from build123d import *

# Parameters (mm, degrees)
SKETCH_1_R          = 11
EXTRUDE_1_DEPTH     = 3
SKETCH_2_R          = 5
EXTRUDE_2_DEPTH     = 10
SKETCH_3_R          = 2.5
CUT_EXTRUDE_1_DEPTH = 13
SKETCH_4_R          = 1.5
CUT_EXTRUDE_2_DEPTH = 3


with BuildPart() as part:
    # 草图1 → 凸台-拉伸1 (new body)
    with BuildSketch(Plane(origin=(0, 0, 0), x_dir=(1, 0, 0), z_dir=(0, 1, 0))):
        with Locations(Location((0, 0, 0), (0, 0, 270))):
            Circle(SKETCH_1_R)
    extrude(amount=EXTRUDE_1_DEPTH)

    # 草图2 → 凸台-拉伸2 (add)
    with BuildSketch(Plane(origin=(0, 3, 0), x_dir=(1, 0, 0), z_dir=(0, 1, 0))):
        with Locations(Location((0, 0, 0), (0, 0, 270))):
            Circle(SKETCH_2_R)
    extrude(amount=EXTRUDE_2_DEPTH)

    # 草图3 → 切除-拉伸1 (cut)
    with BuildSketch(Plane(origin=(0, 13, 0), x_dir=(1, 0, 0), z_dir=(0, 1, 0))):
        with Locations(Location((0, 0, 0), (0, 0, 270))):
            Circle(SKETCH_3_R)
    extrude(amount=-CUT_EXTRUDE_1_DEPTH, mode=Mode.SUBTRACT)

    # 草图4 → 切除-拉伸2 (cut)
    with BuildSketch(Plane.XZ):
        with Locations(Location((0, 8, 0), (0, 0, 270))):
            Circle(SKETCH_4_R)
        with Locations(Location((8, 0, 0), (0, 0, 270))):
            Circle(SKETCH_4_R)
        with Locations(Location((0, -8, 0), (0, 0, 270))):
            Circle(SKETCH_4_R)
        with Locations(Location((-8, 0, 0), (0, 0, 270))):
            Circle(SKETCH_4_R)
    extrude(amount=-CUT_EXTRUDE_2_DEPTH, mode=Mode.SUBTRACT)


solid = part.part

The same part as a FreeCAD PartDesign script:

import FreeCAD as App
import Part
import Sketcher
Q = App.Units.Quantity

doc = App.newDocument("Part")
body = doc.addObject("PartDesign::Body", "Body")

# Sketch on XZ plane
sketch1 = body.newObject("Sketcher::SketchObject", "Sketch")
sketch1.AttachmentSupport = (doc.getObject("XZ_Plane"), [""])
sketch1.MapMode = "FlatFace"
sketch1.addGeometry(Part.Circle(App.Vector(0, 0, 0), App.Vector(0, 0, 1), 11), False)
sketch1.addConstraint([
    Sketcher.Constraint("Coincident", 0, 3, -1, 1),
    Sketcher.Constraint("Diameter", 0, Q("22 mm")),
])
pad1 = body.newObject("PartDesign::Pad", "Pad")
pad1.Profile = sketch1
pad1.Length = 3
pad1.Reversed = True

# Sketch on XZ plane
sketch2 = body.newObject("Sketcher::SketchObject", "Sketch001")
sketch2.AttachmentSupport = (doc.getObject("XZ_Plane"), [""])
sketch2.MapMode = "FlatFace"
sketch2.AttachmentOffset = App.Placement(App.Vector(0, 0, -3), App.Rotation())
sketch2.addGeometry(Part.Circle(App.Vector(0, 0, 0), App.Vector(0, 0, 1), 5), False)
sketch2.addConstraint([
    Sketcher.Constraint("Coincident", 0, 3, -1, 1),
    Sketcher.Constraint("Diameter", 0, Q("10 mm")),
])
pad2 = body.newObject("PartDesign::Pad", "Pad001")
pad2.Profile = sketch2
pad2.Length = 10
pad2.Reversed = True

# Sketch on XZ plane
sketch3 = body.newObject("Sketcher::SketchObject", "Sketch002")
sketch3.AttachmentSupport = (doc.getObject("XZ_Plane"), [""])
sketch3.MapMode = "FlatFace"
sketch3.AttachmentOffset = App.Placement(App.Vector(0, 0, -13), App.Rotation())
sketch3.addGeometry(Part.Circle(App.Vector(0, 0, 0), App.Vector(0, 0, 1), 2.5), False)
sketch3.addConstraint([
    Sketcher.Constraint("Coincident", 0, 3, -1, 1),
    Sketcher.Constraint("Diameter", 0, Q("5 mm")),
])
pocket1 = body.newObject("PartDesign::Pocket", "Pocket")
pocket1.Profile = sketch3
pocket1.Length = 13
pocket1.Reversed = True

# Sketch on XZ plane
sketch4 = body.newObject("Sketcher::SketchObject", "Sketch003")
sketch4.AttachmentSupport = (doc.getObject("XZ_Plane"), [""])
sketch4.MapMode = "FlatFace"
sketch4.addGeometry([
    Part.Circle(App.Vector(0, 8, 0), App.Vector(0, 0, 1), 1.5),
    Part.Circle(App.Vector(8, 0, 0), App.Vector(0, 0, 1), 1.5),
    Part.Circle(App.Vector(0, -8, 0), App.Vector(0, 0, 1), 1.5),
    Part.Circle(App.Vector(-8, 0, 0), App.Vector(0, 0, 1), 1.5),
], False)
sketch4.addConstraint([
    Sketcher.Constraint("Equal", 0, 1),
    Sketcher.Constraint("Equal", 1, 2),
    Sketcher.Constraint("Equal", 2, 3),
    Sketcher.Constraint("Symmetric", 0, 3, 2, 3, -1, 1),
    Sketcher.Constraint("Symmetric", 1, 3, 3, 3, -1, 1),
    Sketcher.Constraint("PointOnObject", 0, 3, -2),
    Sketcher.Constraint("PointOnObject", 1, 3, -1),
    Sketcher.Constraint("Diameter", 0, Q("3 mm")),
    Sketcher.Constraint("DistanceY", -1, 1, 0, 3, Q("8 mm")),
    Sketcher.Constraint("DistanceX", -1, 1, 1, 3, Q("8 mm")),
])
pocket2 = body.newObject("PartDesign::Pocket", "Pocket001")
pocket2.Profile = sketch4
pocket2.Length = 3

doc.recompute()
